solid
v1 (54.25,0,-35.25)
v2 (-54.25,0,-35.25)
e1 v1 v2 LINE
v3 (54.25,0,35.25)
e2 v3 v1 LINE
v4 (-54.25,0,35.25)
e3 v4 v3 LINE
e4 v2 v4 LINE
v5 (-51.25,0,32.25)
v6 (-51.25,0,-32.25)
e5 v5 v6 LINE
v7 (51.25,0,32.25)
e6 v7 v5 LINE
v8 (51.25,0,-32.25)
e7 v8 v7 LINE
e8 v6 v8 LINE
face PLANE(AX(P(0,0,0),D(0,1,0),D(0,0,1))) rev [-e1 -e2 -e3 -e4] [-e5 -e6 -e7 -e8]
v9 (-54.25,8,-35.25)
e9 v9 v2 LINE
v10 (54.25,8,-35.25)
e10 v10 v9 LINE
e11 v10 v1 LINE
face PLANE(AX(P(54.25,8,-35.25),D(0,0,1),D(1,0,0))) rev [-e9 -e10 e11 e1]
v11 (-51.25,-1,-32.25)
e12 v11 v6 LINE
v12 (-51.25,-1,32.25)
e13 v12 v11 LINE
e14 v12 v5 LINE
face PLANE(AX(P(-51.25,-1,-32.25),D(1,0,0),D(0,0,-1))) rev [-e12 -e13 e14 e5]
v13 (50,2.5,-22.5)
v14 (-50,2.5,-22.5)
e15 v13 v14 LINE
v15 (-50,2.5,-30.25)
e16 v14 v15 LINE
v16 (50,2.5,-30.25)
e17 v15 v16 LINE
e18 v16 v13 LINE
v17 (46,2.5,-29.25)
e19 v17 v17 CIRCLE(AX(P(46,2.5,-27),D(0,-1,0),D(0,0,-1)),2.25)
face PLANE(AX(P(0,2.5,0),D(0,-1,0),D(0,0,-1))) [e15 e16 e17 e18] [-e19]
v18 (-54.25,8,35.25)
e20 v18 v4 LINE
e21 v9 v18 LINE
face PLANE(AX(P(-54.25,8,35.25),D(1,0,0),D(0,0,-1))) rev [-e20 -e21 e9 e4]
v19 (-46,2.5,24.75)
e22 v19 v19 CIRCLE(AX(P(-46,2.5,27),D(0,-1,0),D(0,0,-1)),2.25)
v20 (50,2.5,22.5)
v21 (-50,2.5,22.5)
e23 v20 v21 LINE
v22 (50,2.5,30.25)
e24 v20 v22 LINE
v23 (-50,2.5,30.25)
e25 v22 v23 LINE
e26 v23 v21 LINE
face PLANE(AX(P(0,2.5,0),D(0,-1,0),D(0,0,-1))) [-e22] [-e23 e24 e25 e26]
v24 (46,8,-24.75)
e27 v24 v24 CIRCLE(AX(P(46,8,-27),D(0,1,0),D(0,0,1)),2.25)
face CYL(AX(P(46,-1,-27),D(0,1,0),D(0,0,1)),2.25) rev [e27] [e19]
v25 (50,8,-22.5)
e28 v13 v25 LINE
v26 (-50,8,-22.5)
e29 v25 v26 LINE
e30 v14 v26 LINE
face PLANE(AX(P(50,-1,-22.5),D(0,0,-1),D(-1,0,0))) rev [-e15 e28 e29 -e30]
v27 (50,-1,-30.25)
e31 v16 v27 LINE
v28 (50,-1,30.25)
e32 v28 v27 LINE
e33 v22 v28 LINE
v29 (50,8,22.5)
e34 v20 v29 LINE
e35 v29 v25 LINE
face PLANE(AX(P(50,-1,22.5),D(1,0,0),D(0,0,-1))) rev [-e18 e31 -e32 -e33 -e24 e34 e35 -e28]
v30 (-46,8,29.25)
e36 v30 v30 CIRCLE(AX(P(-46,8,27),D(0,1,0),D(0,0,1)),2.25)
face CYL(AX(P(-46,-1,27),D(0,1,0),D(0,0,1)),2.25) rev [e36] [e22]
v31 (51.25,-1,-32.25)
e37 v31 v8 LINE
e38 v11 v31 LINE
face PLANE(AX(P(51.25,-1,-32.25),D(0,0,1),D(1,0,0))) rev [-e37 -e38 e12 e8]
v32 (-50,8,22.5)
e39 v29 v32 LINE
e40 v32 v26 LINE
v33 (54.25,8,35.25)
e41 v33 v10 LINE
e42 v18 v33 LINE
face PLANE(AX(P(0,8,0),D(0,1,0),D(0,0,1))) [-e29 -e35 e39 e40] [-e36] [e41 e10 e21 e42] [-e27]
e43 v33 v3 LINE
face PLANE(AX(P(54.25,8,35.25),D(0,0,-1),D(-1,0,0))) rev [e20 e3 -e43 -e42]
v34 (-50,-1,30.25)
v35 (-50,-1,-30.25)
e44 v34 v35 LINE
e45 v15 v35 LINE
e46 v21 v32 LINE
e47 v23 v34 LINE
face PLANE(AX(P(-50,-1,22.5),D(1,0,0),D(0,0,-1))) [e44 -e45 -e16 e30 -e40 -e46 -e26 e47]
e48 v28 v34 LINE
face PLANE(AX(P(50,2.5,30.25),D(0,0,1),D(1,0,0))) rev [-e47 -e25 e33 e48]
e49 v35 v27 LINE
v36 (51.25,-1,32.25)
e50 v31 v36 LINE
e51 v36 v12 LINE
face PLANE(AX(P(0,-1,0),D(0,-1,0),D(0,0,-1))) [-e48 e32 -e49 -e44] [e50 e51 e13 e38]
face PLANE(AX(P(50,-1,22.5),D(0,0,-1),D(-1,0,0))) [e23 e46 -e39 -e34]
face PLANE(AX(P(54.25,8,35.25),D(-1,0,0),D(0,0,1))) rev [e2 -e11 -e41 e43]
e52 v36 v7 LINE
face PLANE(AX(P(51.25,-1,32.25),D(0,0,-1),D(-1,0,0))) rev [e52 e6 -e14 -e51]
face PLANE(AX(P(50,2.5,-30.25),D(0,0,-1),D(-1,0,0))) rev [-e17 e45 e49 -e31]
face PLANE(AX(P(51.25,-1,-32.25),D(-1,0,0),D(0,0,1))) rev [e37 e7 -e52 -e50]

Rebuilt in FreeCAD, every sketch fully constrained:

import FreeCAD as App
import Part
import Sketcher

doc = App.newDocument("Part")
body = doc.addObject("PartDesign::Body", "Body")

# Sketch on XZ plane
sketch1 = body.newObject("Sketcher::SketchObject", "Sketch")
sketch1.AttachmentSupport = (doc.getObject("XZ_Plane"), [""])
sketch1.MapMode = "FlatFace"
sketch1.addGeometry([
    Part.LineSegment(App.Vector(-54.25, -35.25, 0), App.Vector(-54.25, 35.25, 0)),
    Part.LineSegment(App.Vector(-54.25, 35.25, 0), App.Vector(54.25, 35.25, 0)),
    Part.LineSegment(App.Vector(54.25, 35.25, 0), App.Vector(54.25, -35.25, 0)),
    Part.LineSegment(App.Vector(54.25, -35.25, 0), App.Vector(-54.25, -35.25, 0)),
], False)
sketch1.addConstraint([
    Sketcher.Constraint("Coincident", 0, 2, 1, 1),
    Sketcher.Constraint("Coincident", 1, 2, 2, 1),
    Sketcher.Constraint("Coincident", 2, 2, 3, 1),
    Sketcher.Constraint("Coincident", 3, 2, 0, 1),
    Sketcher.Constraint("Vertical", 0),
    Sketcher.Constraint("Horizontal", 1),
    Sketcher.Constraint("Vertical", 2),
    Sketcher.Constraint("Horizontal", 3),
    Sketcher.Constraint("Symmetric", 0, 2, 2, 2, -1, 1),
    Sketcher.Constraint("DistanceX", 1, 1, 1, 2, 108.5),
    Sketcher.Constraint("DistanceY", 0, 1, 0, 2, 70.5),
])
pad1 = body.newObject("PartDesign::Pad", "Pad")
pad1.Profile = sketch1
pad1.Length = 8
pad1.Reversed = True

# Sketch on XZ plane
sketch2 = body.newObject("Sketcher::SketchObject", "Sketch001")
sketch2.AttachmentSupport = (doc.getObject("XZ_Plane"), [""])
sketch2.MapMode = "FlatFace"
sketch2.addGeometry([
    Part.LineSegment(App.Vector(-51.25, 32.25, 0), App.Vector(-51.25, -32.25, 0)),
    Part.LineSegment(App.Vector(-51.25, -32.25, 0), App.Vector(51.25, -32.25, 0)),
    Part.LineSegment(App.Vector(51.25, -32.25, 0), App.Vector(51.25, 32.25, 0)),
    Part.LineSegment(App.Vector(51.25, 32.25, 0), App.Vector(-51.25, 32.25, 0)),
], False)
sketch2.addConstraint([
    Sketcher.Constraint("Coincident", 0, 2, 1, 1),
    Sketcher.Constraint("Coincident", 1, 2, 2, 1),
    Sketcher.Constraint("Coincident", 2, 2, 3, 1),
    Sketcher.Constraint("Coincident", 3, 2, 0, 1),
    Sketcher.Constraint("Vertical", 0),
    Sketcher.Constraint("Horizontal", 1),
    Sketcher.Constraint("Vertical", 2),
    Sketcher.Constraint("Horizontal", 3),
    Sketcher.Constraint("Symmetric", 0, 2, 2, 2, -1, 1),
    Sketcher.Constraint("DistanceX", 1, 1, 1, 2, 102.5),
    Sketcher.Constraint("DistanceY", 0, 2, 0, 1, 64.5),
])
pad2 = body.newObject("PartDesign::Pad", "Pad001")
pad2.Profile = sketch2
pad2.Length = 1

# Sketch on XZ plane
sketch3 = body.newObject("Sketcher::SketchObject", "Sketch002")
sketch3.AttachmentSupport = (doc.getObject("XZ_Plane"), [""])
sketch3.MapMode = "FlatFace"
sketch3.AttachmentOffset = App.Placement(App.Vector(0, 0, -8), App.Rotation())
sketch3.addGeometry([
    Part.LineSegment(App.Vector(-50, -22.5, 0), App.Vector(-50, 22.5, 0)),
    Part.LineSegment(App.Vector(-50, 22.5, 0), App.Vector(50, 22.5, 0)),
    Part.LineSegment(App.Vector(50, 22.5, 0), App.Vector(50, -22.5, 0)),
    Part.LineSegment(App.Vector(50, -22.5, 0), App.Vector(-50, -22.5, 0)),
], False)
sketch3.addConstraint([
    Sketcher.Constraint("Coincident", 0, 2, 1, 1),
    Sketcher.Constraint("Coincident", 1, 2, 2, 1),
    Sketcher.Constraint("Coincident", 2, 2, 3, 1),
    Sketcher.Constraint("Coincident", 3, 2, 0, 1),
    Sketcher.Constraint("Vertical", 0),
    Sketcher.Constraint("Horizontal", 1),
    Sketcher.Constraint("Vertical", 2),
    Sketcher.Constraint("Horizontal", 3),
    Sketcher.Constraint("Symmetric", 0, 2, 2, 2, -1, 1),
    Sketcher.Constraint("DistanceX", 1, 1, 1, 2, 100.0),
    Sketcher.Constraint("DistanceY", 0, 1, 0, 2, 45.0),
])
pocket1 = body.newObject("PartDesign::Pocket", "Pocket")
pocket1.Profile = sketch3
pocket1.Type = "ThroughAll"
pocket1.Reversed = True

# Sketch on XZ plane
sketch4 = body.newObject("Sketcher::SketchObject", "Sketch003")
sketch4.AttachmentSupport = (doc.getObject("XZ_Plane"), [""])
sketch4.MapMode = "FlatFace"
sketch4.AttachmentOffset = App.Placement(App.Vector(0, 0, 1), App.Rotation())
sketch4.addGeometry([
    Part.LineSegment(App.Vector(-50, 30.25, 0), App.Vector(-50, -30.25, 0)),
    Part.LineSegment(App.Vector(-50, -30.25, 0), App.Vector(50, -30.25, 0)),
    Part.LineSegment(App.Vector(50, -30.25, 0), App.Vector(50, 30.25, 0)),
    Part.LineSegment(App.Vector(50, 30.25, 0), App.Vector(-50, 30.25, 0)),
], False)
sketch4.addConstraint([
    Sketcher.Constraint("Coincident", 0, 2, 1, 1),
    Sketcher.Constraint("Coincident", 1, 2, 2, 1),
    Sketcher.Constraint("Coincident", 2, 2, 3, 1),
    Sketcher.Constraint("Coincident", 3, 2, 0, 1),
    Sketcher.Constraint("Vertical", 0),
    Sketcher.Constraint("Horizontal", 1),
    Sketcher.Constraint("Vertical", 2),
    Sketcher.Constraint("Horizontal", 3),
    Sketcher.Constraint("Symmetric", 0, 2, 2, 2, -1, 1),
    Sketcher.Constraint("DistanceX", 1, 1, 1, 2, 100.0),
    Sketcher.Constraint("DistanceY", 0, 2, 0, 1, 60.5),
])
pocket2 = body.newObject("PartDesign::Pocket", "Pocket001")
pocket2.Profile = sketch4
pocket2.Length = 3.5

# Sketch on XZ plane
sketch5 = body.newObject("Sketcher::SketchObject", "Sketch004")
sketch5.AttachmentSupport = (doc.getObject("XZ_Plane"), [""])
sketch5.MapMode = "FlatFace"
sketch5.AttachmentOffset = App.Placement(App.Vector(0, 0, -8), App.Rotation())
sketch5.addGeometry([
    Part.Circle(App.Vector(-46, 27, 0), App.Vector(0, 0, 1), 2.25),
    Part.Circle(App.Vector(46, -27, 0), App.Vector(0, 0, 1), 2.25),
], False)
sketch5.addConstraint([
    Sketcher.Constraint("Equal", 0, 1),
    Sketcher.Constraint("Symmetric", 0, 3, 1, 3, -1, 1),
    Sketcher.Constraint("Diameter", 0, 4.5),
    Sketcher.Constraint("DistanceX", 0, 3, -1, 1, 46.0),
    Sketcher.Constraint("DistanceY", -1, 1, 0, 3, 27.0),
])
pocket3 = body.newObject("PartDesign::Pocket", "Pocket002")
pocket3.Profile = sketch5
pocket3.Type = "ThroughAll"
pocket3.Reversed = True

doc.recompute()
